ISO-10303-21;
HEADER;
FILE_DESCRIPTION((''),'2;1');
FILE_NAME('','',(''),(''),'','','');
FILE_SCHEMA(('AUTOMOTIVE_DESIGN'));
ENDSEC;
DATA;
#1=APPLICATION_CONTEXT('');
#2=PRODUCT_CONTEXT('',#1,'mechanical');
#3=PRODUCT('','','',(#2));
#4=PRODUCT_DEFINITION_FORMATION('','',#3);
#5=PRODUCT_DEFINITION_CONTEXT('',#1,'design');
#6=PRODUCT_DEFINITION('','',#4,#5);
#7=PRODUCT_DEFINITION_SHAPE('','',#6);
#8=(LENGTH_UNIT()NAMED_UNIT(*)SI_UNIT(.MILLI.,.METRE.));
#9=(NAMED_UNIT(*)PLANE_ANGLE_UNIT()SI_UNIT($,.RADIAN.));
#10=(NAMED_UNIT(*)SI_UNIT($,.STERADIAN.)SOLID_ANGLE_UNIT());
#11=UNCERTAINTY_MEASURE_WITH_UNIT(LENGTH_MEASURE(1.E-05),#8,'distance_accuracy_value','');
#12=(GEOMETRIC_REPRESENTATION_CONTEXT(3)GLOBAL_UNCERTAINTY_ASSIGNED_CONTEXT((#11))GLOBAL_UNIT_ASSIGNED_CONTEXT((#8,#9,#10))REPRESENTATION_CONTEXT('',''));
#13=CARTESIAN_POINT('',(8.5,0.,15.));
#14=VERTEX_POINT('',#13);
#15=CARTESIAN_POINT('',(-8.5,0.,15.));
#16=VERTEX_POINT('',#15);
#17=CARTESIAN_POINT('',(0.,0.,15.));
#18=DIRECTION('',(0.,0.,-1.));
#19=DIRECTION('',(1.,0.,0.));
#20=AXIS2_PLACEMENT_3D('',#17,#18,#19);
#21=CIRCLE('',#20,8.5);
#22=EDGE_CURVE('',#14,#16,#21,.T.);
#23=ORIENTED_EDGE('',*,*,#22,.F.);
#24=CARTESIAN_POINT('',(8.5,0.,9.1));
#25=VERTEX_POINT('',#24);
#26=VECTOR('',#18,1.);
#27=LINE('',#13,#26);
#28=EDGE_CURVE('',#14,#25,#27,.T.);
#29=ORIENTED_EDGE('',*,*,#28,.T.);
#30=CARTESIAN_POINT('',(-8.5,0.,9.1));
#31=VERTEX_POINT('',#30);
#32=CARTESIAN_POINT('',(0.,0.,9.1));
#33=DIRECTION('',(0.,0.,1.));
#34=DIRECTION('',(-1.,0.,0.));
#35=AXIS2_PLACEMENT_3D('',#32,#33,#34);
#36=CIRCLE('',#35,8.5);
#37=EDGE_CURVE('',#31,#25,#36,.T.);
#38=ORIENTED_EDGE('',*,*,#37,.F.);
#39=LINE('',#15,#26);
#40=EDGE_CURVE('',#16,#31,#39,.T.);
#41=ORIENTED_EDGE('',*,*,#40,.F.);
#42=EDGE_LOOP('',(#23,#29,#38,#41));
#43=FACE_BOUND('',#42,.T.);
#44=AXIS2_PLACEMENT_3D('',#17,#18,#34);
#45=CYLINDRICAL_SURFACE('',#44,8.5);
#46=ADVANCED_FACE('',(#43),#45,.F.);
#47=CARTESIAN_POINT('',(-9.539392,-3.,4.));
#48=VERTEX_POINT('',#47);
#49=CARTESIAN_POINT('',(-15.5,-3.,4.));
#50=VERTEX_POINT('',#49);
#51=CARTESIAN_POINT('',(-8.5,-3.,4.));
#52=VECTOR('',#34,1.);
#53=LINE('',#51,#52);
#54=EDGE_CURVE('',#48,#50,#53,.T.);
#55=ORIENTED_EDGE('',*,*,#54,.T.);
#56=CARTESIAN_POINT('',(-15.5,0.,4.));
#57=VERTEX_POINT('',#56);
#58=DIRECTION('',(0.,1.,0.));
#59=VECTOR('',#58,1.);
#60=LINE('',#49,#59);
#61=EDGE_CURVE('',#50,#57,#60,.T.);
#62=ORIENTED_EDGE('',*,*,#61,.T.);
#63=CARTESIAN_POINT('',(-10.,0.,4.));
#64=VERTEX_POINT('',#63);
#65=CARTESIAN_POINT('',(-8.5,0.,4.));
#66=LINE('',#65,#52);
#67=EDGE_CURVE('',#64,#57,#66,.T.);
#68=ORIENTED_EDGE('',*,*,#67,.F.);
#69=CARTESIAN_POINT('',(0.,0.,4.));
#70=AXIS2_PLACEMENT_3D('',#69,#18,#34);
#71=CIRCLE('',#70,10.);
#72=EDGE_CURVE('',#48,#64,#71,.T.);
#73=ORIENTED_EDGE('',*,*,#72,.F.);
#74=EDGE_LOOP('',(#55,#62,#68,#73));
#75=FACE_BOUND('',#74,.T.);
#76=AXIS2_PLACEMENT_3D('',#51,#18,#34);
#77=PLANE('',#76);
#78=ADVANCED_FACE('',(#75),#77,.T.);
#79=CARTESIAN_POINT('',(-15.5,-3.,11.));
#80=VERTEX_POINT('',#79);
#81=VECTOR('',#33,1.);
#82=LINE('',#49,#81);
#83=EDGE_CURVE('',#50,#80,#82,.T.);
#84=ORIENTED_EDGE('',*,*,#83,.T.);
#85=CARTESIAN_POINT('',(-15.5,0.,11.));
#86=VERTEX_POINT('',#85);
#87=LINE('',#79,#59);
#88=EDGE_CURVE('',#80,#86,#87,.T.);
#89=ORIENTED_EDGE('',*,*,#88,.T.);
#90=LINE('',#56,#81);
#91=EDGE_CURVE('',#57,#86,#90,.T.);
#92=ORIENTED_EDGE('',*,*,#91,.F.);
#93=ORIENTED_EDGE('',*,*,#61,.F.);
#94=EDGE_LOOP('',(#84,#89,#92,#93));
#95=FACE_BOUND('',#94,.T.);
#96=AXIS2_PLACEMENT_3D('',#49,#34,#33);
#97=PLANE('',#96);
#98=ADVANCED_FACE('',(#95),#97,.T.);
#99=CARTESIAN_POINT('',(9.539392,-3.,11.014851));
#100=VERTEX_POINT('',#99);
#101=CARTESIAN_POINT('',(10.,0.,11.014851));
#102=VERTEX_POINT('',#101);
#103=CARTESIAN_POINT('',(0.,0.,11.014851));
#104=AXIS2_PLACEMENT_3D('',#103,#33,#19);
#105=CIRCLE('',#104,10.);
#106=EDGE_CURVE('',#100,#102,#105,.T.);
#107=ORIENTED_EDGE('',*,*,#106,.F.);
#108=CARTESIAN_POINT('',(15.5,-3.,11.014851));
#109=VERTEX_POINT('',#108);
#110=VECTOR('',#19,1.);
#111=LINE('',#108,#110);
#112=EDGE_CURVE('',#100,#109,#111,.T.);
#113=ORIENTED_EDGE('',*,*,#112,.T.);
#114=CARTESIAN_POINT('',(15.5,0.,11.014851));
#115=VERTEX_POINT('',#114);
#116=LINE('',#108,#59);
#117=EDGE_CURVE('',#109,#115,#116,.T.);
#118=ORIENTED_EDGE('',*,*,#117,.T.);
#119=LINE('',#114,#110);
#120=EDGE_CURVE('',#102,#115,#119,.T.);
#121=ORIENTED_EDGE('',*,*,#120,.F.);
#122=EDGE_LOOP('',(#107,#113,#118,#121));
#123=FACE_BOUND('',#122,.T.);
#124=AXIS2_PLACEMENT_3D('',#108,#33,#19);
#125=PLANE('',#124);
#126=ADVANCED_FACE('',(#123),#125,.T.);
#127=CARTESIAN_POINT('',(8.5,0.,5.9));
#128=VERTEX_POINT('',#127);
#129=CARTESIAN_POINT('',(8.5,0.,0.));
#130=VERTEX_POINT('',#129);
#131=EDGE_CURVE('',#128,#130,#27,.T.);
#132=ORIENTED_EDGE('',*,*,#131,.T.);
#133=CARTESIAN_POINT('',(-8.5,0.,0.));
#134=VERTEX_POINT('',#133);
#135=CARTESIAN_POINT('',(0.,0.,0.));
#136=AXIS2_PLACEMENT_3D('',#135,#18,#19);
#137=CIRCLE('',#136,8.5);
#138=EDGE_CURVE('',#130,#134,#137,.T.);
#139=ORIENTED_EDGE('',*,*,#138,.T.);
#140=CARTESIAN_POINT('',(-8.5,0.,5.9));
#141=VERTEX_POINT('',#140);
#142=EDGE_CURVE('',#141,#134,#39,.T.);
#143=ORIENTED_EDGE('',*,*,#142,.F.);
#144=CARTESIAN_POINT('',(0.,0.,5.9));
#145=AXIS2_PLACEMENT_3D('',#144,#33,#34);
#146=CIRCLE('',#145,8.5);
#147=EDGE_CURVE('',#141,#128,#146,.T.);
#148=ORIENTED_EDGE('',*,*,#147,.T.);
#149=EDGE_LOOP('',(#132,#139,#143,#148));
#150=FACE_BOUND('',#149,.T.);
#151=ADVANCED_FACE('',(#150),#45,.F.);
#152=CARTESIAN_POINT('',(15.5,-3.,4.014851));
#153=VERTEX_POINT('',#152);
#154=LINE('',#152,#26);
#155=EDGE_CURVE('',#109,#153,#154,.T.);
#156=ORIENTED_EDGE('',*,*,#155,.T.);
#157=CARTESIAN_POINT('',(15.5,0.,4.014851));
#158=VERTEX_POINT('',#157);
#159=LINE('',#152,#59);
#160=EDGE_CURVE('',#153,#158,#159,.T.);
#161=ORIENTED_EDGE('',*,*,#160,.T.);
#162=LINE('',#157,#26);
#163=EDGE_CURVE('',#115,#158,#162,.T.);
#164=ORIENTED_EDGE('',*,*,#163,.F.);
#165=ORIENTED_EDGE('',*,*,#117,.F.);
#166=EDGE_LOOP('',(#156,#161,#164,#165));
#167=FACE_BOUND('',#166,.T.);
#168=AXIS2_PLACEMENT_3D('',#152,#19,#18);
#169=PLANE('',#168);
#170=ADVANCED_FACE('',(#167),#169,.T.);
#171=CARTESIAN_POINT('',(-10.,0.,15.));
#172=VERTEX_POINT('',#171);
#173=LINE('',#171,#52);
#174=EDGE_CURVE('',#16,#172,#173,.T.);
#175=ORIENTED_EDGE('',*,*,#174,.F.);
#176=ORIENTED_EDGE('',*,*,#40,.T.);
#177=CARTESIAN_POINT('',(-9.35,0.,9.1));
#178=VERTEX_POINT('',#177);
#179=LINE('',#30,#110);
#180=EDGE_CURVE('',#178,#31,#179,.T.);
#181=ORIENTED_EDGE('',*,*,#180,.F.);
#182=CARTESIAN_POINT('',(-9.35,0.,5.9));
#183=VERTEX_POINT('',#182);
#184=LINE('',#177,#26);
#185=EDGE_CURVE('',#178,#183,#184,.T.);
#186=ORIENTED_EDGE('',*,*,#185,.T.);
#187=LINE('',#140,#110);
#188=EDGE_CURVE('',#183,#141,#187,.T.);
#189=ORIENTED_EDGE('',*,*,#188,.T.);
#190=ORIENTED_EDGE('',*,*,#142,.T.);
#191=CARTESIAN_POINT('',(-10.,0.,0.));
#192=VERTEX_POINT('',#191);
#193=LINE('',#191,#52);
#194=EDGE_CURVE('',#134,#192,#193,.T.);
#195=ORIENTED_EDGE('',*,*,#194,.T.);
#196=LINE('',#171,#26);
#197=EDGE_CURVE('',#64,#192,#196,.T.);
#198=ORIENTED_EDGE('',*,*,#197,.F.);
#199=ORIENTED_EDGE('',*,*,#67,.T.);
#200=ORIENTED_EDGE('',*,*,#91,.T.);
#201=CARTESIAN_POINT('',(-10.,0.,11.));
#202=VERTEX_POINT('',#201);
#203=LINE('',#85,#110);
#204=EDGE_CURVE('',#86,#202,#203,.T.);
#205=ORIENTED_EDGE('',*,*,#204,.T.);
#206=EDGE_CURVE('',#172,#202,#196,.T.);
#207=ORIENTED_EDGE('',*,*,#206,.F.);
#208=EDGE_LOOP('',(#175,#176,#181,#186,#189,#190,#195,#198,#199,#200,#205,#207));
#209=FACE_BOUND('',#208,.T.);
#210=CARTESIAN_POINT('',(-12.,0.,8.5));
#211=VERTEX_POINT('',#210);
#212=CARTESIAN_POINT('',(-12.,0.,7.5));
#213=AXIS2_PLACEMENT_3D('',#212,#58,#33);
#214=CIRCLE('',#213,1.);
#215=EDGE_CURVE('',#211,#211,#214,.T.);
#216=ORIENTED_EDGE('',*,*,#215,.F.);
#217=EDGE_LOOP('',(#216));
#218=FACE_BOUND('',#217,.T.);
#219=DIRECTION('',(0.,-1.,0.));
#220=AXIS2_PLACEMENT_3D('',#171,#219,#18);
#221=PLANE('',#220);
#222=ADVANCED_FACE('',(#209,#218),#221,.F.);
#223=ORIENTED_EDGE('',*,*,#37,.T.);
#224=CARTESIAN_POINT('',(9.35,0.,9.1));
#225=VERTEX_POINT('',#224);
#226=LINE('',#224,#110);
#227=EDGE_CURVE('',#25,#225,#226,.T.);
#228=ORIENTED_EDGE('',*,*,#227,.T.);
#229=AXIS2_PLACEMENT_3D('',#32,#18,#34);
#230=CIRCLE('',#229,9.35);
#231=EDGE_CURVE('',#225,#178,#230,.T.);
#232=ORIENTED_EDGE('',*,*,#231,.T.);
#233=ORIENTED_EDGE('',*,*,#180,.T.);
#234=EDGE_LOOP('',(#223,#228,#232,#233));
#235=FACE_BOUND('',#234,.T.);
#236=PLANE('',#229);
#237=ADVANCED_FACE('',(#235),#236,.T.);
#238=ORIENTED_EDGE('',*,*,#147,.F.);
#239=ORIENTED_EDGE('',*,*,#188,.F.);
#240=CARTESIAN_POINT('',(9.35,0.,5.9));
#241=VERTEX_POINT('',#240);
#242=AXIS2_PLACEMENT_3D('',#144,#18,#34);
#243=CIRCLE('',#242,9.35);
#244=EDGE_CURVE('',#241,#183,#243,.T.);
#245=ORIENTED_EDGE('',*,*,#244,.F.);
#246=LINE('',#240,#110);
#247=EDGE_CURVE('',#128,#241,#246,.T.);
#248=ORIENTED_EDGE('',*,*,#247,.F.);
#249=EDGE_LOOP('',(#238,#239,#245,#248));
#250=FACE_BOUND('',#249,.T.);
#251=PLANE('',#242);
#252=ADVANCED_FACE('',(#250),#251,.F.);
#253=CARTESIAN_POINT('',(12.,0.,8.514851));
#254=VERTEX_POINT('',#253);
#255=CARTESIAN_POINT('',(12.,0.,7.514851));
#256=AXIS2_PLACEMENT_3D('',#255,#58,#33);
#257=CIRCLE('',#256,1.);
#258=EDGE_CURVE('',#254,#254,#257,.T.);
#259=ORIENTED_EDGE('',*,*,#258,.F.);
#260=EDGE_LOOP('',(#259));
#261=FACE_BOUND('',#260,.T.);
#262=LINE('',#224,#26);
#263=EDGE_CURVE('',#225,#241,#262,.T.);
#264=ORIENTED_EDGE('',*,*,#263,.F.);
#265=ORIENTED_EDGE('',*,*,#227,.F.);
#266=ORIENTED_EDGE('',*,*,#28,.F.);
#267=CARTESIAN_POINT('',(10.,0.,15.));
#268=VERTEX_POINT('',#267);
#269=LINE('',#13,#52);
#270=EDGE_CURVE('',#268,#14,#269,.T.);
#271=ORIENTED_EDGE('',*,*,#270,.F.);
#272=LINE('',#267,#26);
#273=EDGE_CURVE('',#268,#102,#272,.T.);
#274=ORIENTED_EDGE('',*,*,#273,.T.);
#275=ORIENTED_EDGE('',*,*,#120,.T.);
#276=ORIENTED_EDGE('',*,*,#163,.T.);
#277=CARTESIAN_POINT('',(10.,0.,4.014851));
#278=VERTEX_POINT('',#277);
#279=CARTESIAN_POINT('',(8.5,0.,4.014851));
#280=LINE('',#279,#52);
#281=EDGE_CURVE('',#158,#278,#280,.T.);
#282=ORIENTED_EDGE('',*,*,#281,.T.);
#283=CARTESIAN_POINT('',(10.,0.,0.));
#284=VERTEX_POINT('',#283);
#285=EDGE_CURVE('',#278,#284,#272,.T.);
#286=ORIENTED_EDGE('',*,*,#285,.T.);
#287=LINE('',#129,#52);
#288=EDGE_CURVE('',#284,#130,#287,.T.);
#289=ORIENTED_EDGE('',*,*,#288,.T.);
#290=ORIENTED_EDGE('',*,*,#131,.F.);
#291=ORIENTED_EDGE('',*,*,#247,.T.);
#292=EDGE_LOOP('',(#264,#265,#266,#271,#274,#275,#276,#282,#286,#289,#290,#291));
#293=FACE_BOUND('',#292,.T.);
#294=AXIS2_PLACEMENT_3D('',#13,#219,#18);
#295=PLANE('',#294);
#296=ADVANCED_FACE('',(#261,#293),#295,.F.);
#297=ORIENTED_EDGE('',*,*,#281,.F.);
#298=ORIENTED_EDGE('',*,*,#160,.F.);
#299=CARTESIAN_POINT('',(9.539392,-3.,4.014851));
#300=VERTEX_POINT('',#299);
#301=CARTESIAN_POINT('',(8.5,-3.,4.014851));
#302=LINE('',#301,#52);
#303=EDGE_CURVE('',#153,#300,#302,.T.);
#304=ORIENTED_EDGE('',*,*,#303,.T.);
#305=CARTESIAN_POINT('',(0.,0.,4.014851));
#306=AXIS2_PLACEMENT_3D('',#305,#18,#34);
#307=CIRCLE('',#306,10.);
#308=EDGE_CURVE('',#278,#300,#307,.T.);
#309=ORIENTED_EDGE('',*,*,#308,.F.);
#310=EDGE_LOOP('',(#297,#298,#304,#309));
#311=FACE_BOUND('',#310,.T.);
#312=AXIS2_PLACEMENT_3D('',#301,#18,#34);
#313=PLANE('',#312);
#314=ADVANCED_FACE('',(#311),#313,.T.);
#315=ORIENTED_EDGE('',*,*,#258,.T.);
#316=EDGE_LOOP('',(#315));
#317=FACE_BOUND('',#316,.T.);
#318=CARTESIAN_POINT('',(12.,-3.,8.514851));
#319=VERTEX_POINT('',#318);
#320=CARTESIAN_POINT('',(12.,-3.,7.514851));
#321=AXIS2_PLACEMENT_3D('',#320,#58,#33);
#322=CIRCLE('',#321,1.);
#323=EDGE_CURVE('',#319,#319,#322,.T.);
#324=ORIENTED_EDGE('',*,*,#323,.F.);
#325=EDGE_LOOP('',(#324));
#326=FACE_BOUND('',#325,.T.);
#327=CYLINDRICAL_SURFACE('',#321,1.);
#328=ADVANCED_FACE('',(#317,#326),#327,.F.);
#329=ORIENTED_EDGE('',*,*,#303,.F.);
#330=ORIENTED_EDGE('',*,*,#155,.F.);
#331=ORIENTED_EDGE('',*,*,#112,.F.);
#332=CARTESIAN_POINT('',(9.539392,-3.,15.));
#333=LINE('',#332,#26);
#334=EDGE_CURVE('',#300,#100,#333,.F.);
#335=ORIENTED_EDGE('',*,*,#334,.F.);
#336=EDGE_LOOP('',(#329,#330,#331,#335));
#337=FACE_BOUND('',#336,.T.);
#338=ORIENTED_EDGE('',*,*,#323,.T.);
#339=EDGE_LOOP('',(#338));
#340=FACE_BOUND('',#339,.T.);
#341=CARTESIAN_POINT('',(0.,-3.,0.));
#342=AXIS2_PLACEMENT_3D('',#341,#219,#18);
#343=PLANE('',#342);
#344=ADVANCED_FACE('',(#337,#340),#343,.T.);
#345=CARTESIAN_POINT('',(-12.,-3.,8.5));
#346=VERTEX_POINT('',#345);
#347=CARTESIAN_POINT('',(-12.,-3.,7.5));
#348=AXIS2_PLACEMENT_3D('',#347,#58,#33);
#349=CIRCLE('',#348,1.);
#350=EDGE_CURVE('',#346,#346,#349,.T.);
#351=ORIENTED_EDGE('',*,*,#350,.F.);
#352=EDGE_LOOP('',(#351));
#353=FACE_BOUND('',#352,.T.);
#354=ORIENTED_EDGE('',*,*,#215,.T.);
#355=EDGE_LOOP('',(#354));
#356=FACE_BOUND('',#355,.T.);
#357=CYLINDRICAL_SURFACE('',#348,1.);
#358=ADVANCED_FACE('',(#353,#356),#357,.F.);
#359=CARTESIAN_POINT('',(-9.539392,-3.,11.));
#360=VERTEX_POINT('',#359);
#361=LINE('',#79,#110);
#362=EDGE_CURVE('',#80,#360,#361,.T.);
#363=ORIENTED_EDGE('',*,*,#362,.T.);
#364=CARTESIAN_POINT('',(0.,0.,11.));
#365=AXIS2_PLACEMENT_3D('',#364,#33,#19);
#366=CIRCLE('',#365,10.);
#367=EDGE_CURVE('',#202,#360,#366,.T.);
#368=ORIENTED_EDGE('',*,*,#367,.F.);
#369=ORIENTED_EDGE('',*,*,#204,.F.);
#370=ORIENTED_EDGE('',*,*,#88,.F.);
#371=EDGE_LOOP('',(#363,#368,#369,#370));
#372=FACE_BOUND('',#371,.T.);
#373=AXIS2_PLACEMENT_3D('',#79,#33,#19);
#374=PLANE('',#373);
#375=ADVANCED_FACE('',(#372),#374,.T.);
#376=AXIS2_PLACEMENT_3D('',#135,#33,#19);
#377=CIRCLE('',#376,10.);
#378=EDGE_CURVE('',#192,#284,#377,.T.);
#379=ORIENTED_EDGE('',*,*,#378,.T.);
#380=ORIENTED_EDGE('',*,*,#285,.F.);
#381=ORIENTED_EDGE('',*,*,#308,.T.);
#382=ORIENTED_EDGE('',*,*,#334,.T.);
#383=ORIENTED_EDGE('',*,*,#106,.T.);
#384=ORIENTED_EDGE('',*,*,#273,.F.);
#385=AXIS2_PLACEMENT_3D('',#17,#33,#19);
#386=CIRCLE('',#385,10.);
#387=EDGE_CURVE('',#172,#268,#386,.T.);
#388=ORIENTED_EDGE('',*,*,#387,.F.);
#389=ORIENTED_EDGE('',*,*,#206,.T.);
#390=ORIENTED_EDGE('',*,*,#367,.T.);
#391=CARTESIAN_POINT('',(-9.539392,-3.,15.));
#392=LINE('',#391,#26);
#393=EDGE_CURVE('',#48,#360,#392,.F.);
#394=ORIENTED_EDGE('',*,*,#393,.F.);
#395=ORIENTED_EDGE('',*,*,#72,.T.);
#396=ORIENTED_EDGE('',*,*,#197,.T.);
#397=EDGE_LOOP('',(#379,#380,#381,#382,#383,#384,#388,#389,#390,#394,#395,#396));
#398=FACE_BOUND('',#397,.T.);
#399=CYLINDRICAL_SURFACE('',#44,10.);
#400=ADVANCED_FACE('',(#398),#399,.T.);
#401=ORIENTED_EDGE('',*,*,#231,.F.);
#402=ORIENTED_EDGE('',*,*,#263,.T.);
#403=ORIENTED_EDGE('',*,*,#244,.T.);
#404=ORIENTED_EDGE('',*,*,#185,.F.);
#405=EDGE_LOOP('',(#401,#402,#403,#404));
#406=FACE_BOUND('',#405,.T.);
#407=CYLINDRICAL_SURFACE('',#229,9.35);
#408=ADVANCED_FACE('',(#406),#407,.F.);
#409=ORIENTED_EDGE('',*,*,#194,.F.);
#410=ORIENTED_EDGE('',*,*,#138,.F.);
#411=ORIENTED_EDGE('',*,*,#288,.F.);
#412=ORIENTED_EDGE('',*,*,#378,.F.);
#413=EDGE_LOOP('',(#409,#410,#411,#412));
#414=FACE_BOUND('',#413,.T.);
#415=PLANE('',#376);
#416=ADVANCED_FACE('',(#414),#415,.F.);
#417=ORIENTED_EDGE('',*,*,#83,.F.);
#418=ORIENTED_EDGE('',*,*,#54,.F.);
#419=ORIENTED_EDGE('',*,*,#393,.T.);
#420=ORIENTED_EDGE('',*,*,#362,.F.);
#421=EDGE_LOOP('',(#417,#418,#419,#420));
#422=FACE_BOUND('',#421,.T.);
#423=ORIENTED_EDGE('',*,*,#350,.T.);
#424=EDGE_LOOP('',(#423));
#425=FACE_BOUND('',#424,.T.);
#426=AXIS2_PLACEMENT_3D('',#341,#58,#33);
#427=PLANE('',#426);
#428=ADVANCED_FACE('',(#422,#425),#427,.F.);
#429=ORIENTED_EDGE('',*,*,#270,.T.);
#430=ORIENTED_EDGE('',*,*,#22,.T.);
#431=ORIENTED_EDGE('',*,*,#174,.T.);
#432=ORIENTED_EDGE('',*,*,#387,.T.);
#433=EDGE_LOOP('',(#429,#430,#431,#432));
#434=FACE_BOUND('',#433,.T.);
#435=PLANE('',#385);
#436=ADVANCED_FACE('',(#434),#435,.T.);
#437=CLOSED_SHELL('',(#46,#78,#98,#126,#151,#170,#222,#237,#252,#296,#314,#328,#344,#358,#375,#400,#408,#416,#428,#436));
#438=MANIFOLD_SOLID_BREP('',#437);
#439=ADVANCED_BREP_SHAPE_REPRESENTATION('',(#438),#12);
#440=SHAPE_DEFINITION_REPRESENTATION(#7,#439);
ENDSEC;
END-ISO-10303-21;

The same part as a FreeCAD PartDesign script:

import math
import FreeCAD as App
import Part
import Sketcher
from FreeCAD import Vector

doc = App.newDocument("Part")
body = doc.addObject("PartDesign::Body", "Body")

sketch1 = body.newObject("Sketcher::SketchObject", "Sketch")
sketch1.AttachmentSupport = (doc.getObject("XY_Plane"), [""])
sketch1.MapMode = "FlatFace"
sketch1.addGeometry(Part.LineSegment(Vector(-8.5, 0, 0), Vector(-10, 0, 0)), False)
sketch1.addGeometry(Part.ArcOfCircle(Part.Circle(Vector(0, 0, 0), Vector(0, 0, 1), 10), math.radians(180), math.radians(360)), False)
sketch1.addGeometry(Part.LineSegment(Vector(10, 0, 0), Vector(8.5, 0, 0)), False)
sketch1.addGeometry(Part.ArcOfCircle(Part.Circle(Vector(0, 0, 0), Vector(0, 0, 1), 8.5), math.radians(180), math.radians(360)), False)
sketch1.addConstraint(Sketcher.Constraint("Coincident", 0, 2, 1, 1))
sketch1.addConstraint(Sketcher.Constraint("Coincident", 1, 2, 2, 1))
sketch1.addConstraint(Sketcher.Constraint("Coincident", 2, 2, 3, 2))
sketch1.addConstraint(Sketcher.Constraint("Coincident", 3, 1, 0, 1))
sketch1.addConstraint(Sketcher.Constraint("Horizontal", 0))
sketch1.addConstraint(Sketcher.Constraint("Horizontal", 2))
sketch1.addConstraint(Sketcher.Constraint("Coincident", 1, 3, -1, 1))
sketch1.addConstraint(Sketcher.Constraint("Coincident", 3, 3, -1, 1))
sketch1.addConstraint(Sketcher.Constraint("PointOnObject", 0, 2, -1))
sketch1.addConstraint(Sketcher.Constraint("PointOnObject", 1, 2, -1))
sketch1.addConstraint(Sketcher.Constraint("Radius", 1, 10.0))
sketch1.addConstraint(Sketcher.Constraint("Radius", 3, 8.5))
pad1 = body.newObject("PartDesign::Pad", "Pad")
pad1.Profile = sketch1
pad1.Length = 15

sketch2 = body.newObject("Sketcher::SketchObject", "Sketch001")
sketch2.AttachmentSupport = (doc.getObject("XZ_Plane"), [""])
sketch2.MapMode = "FlatFace"
sketch2.addGeometry(Part.LineSegment(Vector(-15.5, 4, 0), Vector(-15.5, 11, 0)), False)
sketch2.addGeometry(Part.LineSegment(Vector(-15.5, 11, 0), Vector(-8.5, 11, 0)), False)
sketch2.addGeometry(Part.LineSegment(Vector(-8.5, 11, 0), Vector(-8.5, 4, 0)), False)
sketch2.addGeometry(Part.LineSegment(Vector(-8.5, 4, 0), Vector(-15.5, 4, 0)), False)
sketch2.addGeometry(Part.Circle(Vector(-12, 7.5, 0), Vector(0, 0, 1), 1), False)
sketch2.addGeometry(Part.LineSegment(Vector(8.5, 4, 0), Vector(8.5, 11, 0)), False)
sketch2.addGeometry(Part.LineSegment(Vector(8.5, 11, 0), Vector(15.5, 11, 0)), False)
sketch2.addGeometry(Part.LineSegment(Vector(15.5, 11, 0), Vector(15.5, 4, 0)), False)
sketch2.addGeometry(Part.LineSegment(Vector(15.5, 4, 0), Vector(8.5, 4, 0)), False)
sketch2.addGeometry(Part.Circle(Vector(12, 7.5, 0), Vector(0, 0, 1), 1), False)
sketch2.addConstraint(Sketcher.Constraint("Coincident", 0, 2, 1, 1))
sketch2.addConstraint(Sketcher.Constraint("Coincident", 1, 2, 2, 1))
sketch2.addConstraint(Sketcher.Constraint("Coincident", 2, 2, 3, 1))
sketch2.addConstraint(Sketcher.Constraint("Coincident", 3, 2, 0, 1))
sketch2.addConstraint(Sketcher.Constraint("Coincident", 5, 2, 6, 1))
sketch2.addConstraint(Sketcher.Constraint("Coincident", 6, 2, 7, 1))
sketch2.addConstraint(Sketcher.Constraint("Coincident", 7, 2, 8, 1))
sketch2.addConstraint(Sketcher.Constraint("Coincident", 8, 2, 5, 1))
sketch2.addConstraint(Sketcher.Constraint("Vertical", 0))
sketch2.addConstraint(Sketcher.Constraint("Horizontal", 1))
sketch2.addConstraint(Sketcher.Constraint("Vertical", 2))
sketch2.addConstraint(Sketcher.Constraint("Horizontal", 3))
sketch2.addConstraint(Sketcher.Constraint("Vertical", 5))
sketch2.addConstraint(Sketcher.Constraint("Horizontal", 6))
sketch2.addConstraint(Sketcher.Constraint("Vertical", 7))
sketch2.addConstraint(Sketcher.Constraint("Horizontal", 8))
sketch2.addConstraint(Sketcher.Constraint("Equal", 4, 9))
sketch2.addConstraint(Sketcher.Constraint("Equal", 3, 6))
sketch2.addConstraint(Sketcher.Constraint("Equal", 8, 0))
sketch2.addConstraint(Sketcher.Constraint("Equal", 2, 5))
sketch2.addConstraint(Sketcher.Constraint("Diameter", 4, 2.0))
sketch2.addConstraint(Sketcher.Constraint("DistanceX", 1, 1, 1, 2, 7.0))
sketch2.addConstraint(Sketcher.Constraint("DistanceX", 4, 3, -1, 1, 12.0))
sketch2.addConstraint(Sketcher.Constraint("DistanceX", -1, 1, 9, 3, 12.0))
sketch2.addConstraint(Sketcher.Constraint("DistanceY", -1, 1, 0, 2, 11.0))
sketch2.addConstraint(Sketcher.Constraint("DistanceX", 1, 2, 5, 2, 17.0))
sketch2.addConstraint(Sketcher.Constraint("DistanceY", -1, 1, 4, 3, 7.5))
sketch2.addConstraint(Sketcher.Constraint("DistanceX", 0, 2, -1, 1, 15.5))
sketch2.addConstraint(Sketcher.Constraint("DistanceY", 9, 3, 5, 2, 3.5))
sketch2.addConstraint(Sketcher.Constraint("DistanceY", -1, 1, 9, 3, 7.514851))
pad2 = body.newObject("PartDesign::Pad", "Pad001")
pad2.Profile = sketch2
pad2.Length = 3

sketch3 = body.newObject("Sketcher::SketchObject", "Sketch002")
sketch3.AttachmentSupport = (doc.getObject("XY_Plane"), [""])
sketch3.MapMode = "FlatFace"
sketch3.AttachmentOffset = App.Placement(Vector(0, 0, 7.5), App.Rotation())
sketch3.addGeometry(Part.LineSegment(Vector(8.5, 0, 0), Vector(9.3, 0, 0)), False)
sketch3.addGeometry(Part.ArcOfCircle(Part.Circle(Vector(0, 0, 0), Vector(0, 0, 1), 9.3), math.radians(180), math.radians(360)), False)
sketch3.addGeometry(Part.LineSegment(Vector(-9.3, 0, 0), Vector(-8.5, 0, 0)), False)
sketch3.addGeometry(Part.ArcOfCircle(Part.Circle(Vector(0, 0, 0), Vector(0, 0, 1), 8.5), math.radians(180), math.radians(360)), False)
sketch3.addConstraint(Sketcher.Constraint("Coincident", 0, 2, 1, 2))
sketch3.addConstraint(Sketcher.Constraint("Coincident", 1, 1, 2, 1))
sketch3.addConstraint(Sketcher.Constraint("Coincident", 2, 2, 3, 1))
sketch3.addConstraint(Sketcher.Constraint("Coincident", 3, 2, 0, 1))
sketch3.addConstraint(Sketcher.Constraint("Horizontal", 0))
sketch3.addConstraint(Sketcher.Constraint("Horizontal", 2))
sketch3.addConstraint(Sketcher.Constraint("Coincident", 1, 3, -1, 1))
sketch3.addConstraint(Sketcher.Constraint("Coincident", 3, 3, -1, 1))
sketch3.addConstraint(Sketcher.Constraint("PointOnObject", 0, 2, -1))
sketch3.addConstraint(Sketcher.Constraint("PointOnObject", 1, 1, -1))
sketch3.addConstraint(Sketcher.Constraint("Radius", 3, 8.5))
sketch3.addConstraint(Sketcher.Constraint("Radius", 1, 9.35))
pocket1 = body.newObject("PartDesign::Pocket", "Pocket")
pocket1.Profile = sketch3
pocket1.Length = 3.2
pocket1.Midplane = True

doc.recompute()
